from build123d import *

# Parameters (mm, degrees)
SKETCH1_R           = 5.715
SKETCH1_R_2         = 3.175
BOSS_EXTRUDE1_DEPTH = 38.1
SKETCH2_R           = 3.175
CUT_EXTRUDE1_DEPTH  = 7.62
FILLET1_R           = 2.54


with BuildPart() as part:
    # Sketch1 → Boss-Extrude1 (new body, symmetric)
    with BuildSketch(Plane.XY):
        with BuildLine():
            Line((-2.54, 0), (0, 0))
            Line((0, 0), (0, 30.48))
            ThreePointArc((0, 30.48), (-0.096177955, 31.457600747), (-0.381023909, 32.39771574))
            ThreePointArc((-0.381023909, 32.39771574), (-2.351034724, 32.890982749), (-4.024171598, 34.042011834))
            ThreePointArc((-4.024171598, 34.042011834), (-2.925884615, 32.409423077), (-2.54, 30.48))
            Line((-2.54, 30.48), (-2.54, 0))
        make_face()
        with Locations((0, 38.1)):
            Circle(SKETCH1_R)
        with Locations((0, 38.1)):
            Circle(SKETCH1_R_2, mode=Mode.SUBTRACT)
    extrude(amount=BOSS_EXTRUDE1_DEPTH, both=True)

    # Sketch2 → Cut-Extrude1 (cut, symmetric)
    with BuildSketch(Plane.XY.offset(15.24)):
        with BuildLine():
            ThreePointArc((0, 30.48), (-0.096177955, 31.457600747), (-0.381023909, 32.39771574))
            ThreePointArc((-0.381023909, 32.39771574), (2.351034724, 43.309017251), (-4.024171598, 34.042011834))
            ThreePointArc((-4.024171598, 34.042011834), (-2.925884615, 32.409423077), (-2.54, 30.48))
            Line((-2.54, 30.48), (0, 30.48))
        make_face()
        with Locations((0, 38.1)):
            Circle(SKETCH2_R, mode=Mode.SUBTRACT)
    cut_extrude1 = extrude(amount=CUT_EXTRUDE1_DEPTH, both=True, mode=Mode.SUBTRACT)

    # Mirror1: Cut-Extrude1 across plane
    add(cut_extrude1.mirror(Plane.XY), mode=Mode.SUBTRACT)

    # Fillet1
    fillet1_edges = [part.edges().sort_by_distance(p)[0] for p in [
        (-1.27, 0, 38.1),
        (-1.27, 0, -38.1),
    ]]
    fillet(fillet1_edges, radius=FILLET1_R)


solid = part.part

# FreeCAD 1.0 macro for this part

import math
import FreeCAD as App
import Part
import Sketcher
from FreeCAD import Vector
Q = App.Units.Quantity


def edges_at(feature, points):
    """Names of the edges that pass closest to the given points."""
    edges = feature.Shape.Edges
    near = lambda p: min(range(len(edges)), key=lambda i: edges[i].distToShape(Part.Vertex(*p))[0])
    return sorted({f"Edge{near(p) + 1}" for p in points})

doc = App.newDocument("Part")
body = doc.addObject("PartDesign::Body", "Body")

# Sketch on XY plane
sketch1 = body.newObject("Sketcher::SketchObject", "Sketch")
sketch1.AttachmentSupport = (doc.getObject("XY_Plane"), [""])
sketch1.MapMode = "FlatFace"
sketch1.addGeometry([
    Part.LineSegment(Vector(-2.5, 0, 0), Vector(0, 0, 0)),  # 0
    Part.LineSegment(Vector(0, 0, 0), Vector(0, 30.5, 0)),  # 1
    Part.ArcOfCircle(Part.Circle(Vector(-5, 30.5, 0), Vector(0, 0, 1), 5), math.radians(0), math.radians(22)),  # 2
    Part.ArcOfCircle(Part.Circle(Vector(0, 38.1, 0), Vector(0, 0, 1), 5.7), math.radians(-94), math.radians(225)),  # 3
    Part.ArcOfCircle(Part.Circle(Vector(-7.6, 30.5, 0), Vector(0, 0, 1), 5), math.radians(0), math.radians(45)),  # 4
    Part.LineSegment(Vector(-2.5, 30.5, 0), Vector(-2.5, 0, 0)),  # 5
    Part.Circle(Vector(0, 38.1, 0), Vector(0, 0, 1), 3.2),  # 6
], False)
sketch1.addConstraint([
    Sketcher.Constraint("Coincident", 0, 2, 1, 1),
    Sketcher.Constraint("Tangent", 1, 2, 2, 1),
    Sketcher.Constraint("Coincident", 2, 2, 3, 1),
    Sketcher.Constraint("Tangent", 3, 2, 4, 2),
    Sketcher.Constraint("Tangent", 4, 1, 5, 1),
    Sketcher.Constraint("Coincident", 5, 2, 0, 1),
    Sketcher.Constraint("Horizontal", 0),
    Sketcher.Constraint("Vertical", 1),
    Sketcher.Constraint("Vertical", 5),
    Sketcher.Constraint("Coincident", 0, 2, -1, 1),
    Sketcher.Constraint("Coincident", 6, 3, 3, 3),
    Sketcher.Constraint("Equal", 2, 4),
    Sketcher.Constraint("PointOnObject", 3, 3, -2),
    Sketcher.Constraint("Horizontal", 2, 3, 4, 3),
    Sketcher.Constraint("Diameter", 6, Q("0.25 in")),
    Sketcher.Constraint("DistanceX", 0, 1, 0, 2, Q("0.1 in")),
    Sketcher.Constraint("DistanceY", 1, 1, 1, 2, Q("1.2 in")),
    Sketcher.Constraint("Radius", 3, Q("0.225 in")),
    Sketcher.Constraint("DistanceY", -1, 1, 3, 3, Q("1.5 in")),
])
pad1 = body.newObject("PartDesign::Pad", "Pad")
pad1.Profile = sketch1
pad1.Length = Q("3 in")
pad1.Midplane = True

# Sketch on XY plane
sketch2 = body.newObject("Sketcher::SketchObject", "Sketch001")
sketch2.AttachmentSupport = (doc.getObject("XY_Plane"), [""])
sketch2.MapMode = "FlatFace"
sketch2.AttachmentOffset = App.Placement(Vector(0, 0, 0.6 * 25.4), App.Rotation())
sketch2.addGeometry([
    Part.ArcOfCircle(Part.Circle(Vector(-5, 30.5, 0), Vector(0, 0, 1), 5), math.radians(0), math.radians(22)),  # 0
    Part.ArcOfCircle(Part.Circle(Vector(0, 38.1, 0), Vector(0, 0, 1), 5.7), math.radians(-94), math.radians(225)),  # 1
    Part.ArcOfCircle(Part.Circle(Vector(-7.6, 30.5, 0), Vector(0, 0, 1), 5), math.radians(0), math.radians(45)),  # 2
    Part.LineSegment(Vector(-2.5, 30.5, 0), Vector(0, 30.5, 0)),  # 3
    Part.Circle(Vector(0, 38.1, 0), Vector(0, 0, 1), 3.2),  # 4
], False)
sketch2.addConstraint([
    Sketcher.Constraint("Coincident", 0, 2, 1, 1),
    Sketcher.Constraint("Tangent", 1, 2, 2, 2),
    Sketcher.Constraint("Coincident", 2, 1, 3, 1),
    Sketcher.Constraint("Coincident", 3, 2, 0, 1),
    Sketcher.Constraint("Horizontal", 3),
    Sketcher.Constraint("Coincident", 4, 3, 1, 3),
    Sketcher.Constraint("Equal", 0, 2),
    Sketcher.Constraint("PointOnObject", 1, 3, -2),
    Sketcher.Constraint("PointOnObject", 3, 2, -2),
    Sketcher.Constraint("Horizontal", 0, 3, 2, 3),
    Sketcher.Constraint("Horizontal", 0, 3, 2, 1),
    Sketcher.Constraint("Diameter", 4, Q("0.25 in")),
    Sketcher.Constraint("DistanceX", 3, 1, 3, 2, Q("0.1 in")),
    Sketcher.Constraint("Radius", 1, Q("0.225 in")),
    Sketcher.Constraint("DistanceY", -1, 1, 0, 3, Q("1.2 in")),
    Sketcher.Constraint("DistanceY", -1, 1, 1, 3, Q("1.5 in")),
])
pocket1 = body.newObject("PartDesign::Pocket", "Pocket")
pocket1.Profile = sketch2
pocket1.Length = Q("0.6 in")
pocket1.Midplane = True
doc.recompute()

mirrored = body.newObject("PartDesign::Mirrored", "Mirrored")
mirrored.Originals = [pocket1]
mirrored.MirrorPlane = (doc.getObject("XY_Plane"), [""])
body.Tip = mirrored
doc.recompute()

fillet = body.newObject("PartDesign::Fillet", "Fillet")
fillet.Base = (mirrored, edges_at(mirrored, [(-1.27, 0, 38.1), (-1.27, 0, -38.1)]))
fillet.Radius = Q("0.1 in")

doc.recompute()
